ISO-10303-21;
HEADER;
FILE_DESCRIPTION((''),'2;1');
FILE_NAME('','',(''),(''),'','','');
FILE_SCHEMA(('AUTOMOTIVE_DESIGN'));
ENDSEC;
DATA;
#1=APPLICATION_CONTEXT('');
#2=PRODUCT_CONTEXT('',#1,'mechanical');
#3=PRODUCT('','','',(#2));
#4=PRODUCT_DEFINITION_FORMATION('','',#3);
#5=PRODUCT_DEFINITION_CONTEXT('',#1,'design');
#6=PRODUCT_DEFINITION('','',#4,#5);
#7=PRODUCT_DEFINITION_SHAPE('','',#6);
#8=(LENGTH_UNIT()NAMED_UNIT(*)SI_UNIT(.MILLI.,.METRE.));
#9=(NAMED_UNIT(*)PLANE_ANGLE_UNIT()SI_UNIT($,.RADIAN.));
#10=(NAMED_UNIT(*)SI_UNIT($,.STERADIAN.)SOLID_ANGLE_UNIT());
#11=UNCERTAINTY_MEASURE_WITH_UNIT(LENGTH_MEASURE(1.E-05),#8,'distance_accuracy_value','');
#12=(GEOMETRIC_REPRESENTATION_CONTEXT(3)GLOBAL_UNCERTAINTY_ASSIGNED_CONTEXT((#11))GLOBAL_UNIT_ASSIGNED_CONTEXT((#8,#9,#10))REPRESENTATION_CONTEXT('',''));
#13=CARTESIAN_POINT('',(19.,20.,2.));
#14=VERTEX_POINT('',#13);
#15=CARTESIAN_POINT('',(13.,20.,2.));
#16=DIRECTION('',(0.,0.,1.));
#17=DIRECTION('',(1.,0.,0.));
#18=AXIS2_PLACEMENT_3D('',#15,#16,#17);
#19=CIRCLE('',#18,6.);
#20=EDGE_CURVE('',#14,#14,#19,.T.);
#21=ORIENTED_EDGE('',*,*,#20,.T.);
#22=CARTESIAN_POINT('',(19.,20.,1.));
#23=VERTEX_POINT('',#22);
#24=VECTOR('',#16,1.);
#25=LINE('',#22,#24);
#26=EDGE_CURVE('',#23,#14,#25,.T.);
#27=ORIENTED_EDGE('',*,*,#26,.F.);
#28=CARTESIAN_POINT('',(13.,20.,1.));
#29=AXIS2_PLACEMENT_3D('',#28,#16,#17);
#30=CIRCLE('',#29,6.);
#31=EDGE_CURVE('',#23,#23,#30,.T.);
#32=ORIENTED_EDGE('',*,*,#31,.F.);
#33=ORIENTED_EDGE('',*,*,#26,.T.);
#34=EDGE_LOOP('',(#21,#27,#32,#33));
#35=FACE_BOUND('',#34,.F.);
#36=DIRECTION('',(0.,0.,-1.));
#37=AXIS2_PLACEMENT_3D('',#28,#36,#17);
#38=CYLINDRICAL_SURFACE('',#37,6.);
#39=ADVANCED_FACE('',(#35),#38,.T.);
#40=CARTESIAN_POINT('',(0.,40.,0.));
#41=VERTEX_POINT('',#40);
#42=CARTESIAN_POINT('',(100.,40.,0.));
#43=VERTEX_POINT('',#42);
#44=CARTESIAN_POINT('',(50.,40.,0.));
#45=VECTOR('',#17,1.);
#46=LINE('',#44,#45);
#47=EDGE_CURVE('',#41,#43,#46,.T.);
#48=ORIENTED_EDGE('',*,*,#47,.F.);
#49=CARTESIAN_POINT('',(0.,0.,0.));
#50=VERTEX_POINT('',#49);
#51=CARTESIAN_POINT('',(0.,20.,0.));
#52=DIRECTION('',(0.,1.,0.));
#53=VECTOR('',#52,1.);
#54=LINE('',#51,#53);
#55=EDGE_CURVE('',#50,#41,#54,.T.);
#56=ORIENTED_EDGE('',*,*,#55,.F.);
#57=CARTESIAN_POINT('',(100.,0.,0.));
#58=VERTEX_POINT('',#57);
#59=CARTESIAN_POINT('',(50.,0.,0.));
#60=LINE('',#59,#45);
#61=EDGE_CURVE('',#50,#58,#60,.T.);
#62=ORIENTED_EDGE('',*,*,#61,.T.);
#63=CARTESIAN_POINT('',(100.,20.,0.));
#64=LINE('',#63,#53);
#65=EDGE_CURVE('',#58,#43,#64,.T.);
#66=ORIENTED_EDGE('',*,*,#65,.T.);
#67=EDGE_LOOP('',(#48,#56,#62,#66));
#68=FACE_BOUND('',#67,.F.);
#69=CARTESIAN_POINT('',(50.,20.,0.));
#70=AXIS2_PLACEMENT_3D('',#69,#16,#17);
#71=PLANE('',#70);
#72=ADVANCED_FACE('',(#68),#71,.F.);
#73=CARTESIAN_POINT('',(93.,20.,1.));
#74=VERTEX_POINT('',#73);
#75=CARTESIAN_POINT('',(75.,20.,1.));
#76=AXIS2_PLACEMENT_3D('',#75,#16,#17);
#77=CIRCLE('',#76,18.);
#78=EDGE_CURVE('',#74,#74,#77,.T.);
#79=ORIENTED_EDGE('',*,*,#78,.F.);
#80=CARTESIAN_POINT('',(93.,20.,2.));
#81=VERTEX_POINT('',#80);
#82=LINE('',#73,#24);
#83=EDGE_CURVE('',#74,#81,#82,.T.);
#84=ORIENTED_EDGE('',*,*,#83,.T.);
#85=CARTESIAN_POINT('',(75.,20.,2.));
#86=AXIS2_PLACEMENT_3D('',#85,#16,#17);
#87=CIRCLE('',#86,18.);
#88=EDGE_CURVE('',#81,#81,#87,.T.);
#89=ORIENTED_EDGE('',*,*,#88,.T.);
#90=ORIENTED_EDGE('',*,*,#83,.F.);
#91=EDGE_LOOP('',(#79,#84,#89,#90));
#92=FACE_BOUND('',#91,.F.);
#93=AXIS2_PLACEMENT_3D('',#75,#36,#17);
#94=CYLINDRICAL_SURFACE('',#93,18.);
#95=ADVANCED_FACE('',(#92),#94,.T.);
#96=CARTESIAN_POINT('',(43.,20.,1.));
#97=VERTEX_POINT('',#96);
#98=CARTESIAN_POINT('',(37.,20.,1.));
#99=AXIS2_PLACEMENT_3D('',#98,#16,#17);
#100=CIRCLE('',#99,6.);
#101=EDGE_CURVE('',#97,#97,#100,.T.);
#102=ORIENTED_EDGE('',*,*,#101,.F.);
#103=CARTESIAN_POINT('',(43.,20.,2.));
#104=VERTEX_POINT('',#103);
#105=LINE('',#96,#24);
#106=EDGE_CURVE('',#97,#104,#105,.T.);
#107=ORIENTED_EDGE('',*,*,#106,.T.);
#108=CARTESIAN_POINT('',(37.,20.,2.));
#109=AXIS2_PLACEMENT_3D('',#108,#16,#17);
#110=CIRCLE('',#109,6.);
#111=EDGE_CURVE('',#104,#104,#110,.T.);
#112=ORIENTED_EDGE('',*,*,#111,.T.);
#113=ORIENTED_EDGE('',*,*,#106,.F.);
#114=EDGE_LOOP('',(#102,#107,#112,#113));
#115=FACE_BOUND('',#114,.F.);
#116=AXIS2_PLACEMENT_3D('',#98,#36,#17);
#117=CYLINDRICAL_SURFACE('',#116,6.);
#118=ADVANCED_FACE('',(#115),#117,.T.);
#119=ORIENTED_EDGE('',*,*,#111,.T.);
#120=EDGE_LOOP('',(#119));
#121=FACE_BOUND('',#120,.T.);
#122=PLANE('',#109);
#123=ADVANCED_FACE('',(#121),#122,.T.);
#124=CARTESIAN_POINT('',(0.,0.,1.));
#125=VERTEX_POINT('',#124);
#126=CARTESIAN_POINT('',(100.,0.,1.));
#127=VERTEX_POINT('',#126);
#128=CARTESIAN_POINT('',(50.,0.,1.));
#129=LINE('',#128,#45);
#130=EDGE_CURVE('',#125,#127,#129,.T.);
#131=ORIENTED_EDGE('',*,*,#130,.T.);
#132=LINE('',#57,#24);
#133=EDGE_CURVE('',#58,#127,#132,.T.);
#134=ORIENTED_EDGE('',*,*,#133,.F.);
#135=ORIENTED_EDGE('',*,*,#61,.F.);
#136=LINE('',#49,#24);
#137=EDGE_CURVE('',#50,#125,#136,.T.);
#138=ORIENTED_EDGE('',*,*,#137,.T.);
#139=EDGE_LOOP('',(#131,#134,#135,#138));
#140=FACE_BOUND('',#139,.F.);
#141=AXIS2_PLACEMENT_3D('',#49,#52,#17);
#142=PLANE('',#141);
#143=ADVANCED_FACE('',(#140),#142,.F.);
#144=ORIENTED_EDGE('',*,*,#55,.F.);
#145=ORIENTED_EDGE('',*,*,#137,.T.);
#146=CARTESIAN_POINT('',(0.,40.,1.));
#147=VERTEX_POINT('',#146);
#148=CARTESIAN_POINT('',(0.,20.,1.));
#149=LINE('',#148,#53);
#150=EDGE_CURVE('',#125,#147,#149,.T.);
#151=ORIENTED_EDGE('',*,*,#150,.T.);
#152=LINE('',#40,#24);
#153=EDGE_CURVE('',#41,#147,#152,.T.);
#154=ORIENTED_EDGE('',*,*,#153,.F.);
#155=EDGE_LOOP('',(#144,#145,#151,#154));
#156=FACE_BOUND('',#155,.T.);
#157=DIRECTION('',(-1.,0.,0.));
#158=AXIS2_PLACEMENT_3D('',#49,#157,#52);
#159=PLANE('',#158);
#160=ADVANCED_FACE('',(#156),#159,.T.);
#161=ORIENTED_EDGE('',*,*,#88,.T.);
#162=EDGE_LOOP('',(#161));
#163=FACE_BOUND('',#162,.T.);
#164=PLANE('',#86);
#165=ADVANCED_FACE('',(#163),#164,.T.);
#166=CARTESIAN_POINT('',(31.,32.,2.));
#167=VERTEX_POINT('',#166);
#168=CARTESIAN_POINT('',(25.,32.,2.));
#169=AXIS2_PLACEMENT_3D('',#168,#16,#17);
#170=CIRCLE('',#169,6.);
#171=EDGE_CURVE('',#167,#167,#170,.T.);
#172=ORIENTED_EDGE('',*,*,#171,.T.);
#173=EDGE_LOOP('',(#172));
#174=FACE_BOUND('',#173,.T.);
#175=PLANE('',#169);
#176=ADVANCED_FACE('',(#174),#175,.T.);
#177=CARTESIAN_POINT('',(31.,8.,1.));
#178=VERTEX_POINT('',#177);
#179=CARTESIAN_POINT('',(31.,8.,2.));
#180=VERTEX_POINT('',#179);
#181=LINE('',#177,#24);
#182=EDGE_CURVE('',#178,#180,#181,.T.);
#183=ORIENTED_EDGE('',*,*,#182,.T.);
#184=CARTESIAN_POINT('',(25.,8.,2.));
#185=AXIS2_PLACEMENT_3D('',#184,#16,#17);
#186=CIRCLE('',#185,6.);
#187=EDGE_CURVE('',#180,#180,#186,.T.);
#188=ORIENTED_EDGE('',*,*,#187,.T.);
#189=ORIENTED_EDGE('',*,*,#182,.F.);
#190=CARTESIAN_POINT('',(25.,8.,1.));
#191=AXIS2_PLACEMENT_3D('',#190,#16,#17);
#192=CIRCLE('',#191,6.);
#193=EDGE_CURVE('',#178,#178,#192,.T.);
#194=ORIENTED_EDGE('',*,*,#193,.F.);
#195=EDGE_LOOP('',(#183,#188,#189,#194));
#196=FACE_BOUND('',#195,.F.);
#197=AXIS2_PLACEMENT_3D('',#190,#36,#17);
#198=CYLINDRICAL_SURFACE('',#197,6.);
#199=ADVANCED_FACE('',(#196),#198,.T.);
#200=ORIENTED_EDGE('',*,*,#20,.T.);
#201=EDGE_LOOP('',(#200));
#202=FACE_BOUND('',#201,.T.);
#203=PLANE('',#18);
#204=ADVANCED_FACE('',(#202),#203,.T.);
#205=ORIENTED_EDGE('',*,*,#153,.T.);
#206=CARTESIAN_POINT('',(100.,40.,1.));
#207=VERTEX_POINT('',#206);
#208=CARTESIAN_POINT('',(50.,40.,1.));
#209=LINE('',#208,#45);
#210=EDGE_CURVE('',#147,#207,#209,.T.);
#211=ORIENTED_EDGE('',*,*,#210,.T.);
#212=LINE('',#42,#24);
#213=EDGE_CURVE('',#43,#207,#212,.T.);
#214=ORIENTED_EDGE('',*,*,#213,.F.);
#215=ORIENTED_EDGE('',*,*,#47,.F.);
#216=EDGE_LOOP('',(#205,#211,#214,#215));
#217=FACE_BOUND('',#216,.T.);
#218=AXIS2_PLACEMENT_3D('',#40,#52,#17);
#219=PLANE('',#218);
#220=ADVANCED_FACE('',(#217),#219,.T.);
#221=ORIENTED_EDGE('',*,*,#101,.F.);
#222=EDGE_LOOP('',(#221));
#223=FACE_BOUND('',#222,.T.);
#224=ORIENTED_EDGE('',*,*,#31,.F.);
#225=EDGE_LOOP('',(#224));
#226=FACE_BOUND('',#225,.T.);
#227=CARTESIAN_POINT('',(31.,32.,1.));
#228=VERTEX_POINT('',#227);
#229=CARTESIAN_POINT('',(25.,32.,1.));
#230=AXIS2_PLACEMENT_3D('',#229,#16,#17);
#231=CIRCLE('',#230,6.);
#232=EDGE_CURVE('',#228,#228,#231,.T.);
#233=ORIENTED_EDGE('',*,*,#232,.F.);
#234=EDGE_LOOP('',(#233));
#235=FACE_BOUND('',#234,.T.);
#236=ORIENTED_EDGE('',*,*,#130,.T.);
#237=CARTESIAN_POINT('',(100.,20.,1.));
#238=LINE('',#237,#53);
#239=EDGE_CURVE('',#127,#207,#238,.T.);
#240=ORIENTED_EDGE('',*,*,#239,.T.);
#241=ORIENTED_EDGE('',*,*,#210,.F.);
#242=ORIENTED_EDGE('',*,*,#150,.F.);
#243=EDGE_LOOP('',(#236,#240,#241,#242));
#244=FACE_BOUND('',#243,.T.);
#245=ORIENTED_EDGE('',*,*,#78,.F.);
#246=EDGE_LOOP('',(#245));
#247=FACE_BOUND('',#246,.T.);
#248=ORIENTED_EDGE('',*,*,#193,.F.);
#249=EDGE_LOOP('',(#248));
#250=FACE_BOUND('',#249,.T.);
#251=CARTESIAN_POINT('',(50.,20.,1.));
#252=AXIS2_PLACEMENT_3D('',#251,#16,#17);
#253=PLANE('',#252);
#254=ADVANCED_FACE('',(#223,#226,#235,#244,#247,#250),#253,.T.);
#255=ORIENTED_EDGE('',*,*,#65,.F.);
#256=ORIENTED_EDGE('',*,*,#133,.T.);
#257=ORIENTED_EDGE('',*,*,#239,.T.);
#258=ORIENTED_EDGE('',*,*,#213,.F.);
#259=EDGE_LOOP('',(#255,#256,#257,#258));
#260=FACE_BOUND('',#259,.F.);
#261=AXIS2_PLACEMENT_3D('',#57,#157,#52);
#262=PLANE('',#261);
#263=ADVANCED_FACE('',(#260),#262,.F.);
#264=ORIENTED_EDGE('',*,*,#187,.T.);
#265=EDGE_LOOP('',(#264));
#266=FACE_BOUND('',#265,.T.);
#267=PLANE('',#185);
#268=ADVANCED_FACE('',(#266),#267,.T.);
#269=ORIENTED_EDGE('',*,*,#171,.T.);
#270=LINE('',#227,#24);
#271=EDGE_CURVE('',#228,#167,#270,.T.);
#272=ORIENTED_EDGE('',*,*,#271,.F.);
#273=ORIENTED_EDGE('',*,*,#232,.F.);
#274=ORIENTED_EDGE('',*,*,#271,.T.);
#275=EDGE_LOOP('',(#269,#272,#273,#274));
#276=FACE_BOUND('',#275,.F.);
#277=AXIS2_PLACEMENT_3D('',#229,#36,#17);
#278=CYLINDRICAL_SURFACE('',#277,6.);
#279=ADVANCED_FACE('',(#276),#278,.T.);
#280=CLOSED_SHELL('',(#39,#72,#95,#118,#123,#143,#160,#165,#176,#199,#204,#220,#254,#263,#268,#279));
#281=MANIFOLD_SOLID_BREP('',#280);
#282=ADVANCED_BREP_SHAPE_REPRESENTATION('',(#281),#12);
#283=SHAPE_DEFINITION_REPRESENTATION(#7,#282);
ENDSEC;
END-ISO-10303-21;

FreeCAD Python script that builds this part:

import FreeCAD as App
import Part
import Sketcher

doc = App.newDocument("Part")
body = doc.addObject("PartDesign::Body", "Body")

# Sketch on XY plane
sketch1 = doc.addObject("Sketcher::SketchObject", "Sketch")
body.addObject(sketch1)
sketch1.AttachmentSupport = (doc.XY_Plane, [""])
sketch1.MapMode = "FlatFace"
sketch1.addGeometry(Part.LineSegment(App.Vector(0, 40, 0), App.Vector(0, 0, 0)), False)
sketch1.addGeometry(Part.LineSegment(App.Vector(0, 0, 0), App.Vector(100, 0, 0)), False)
sketch1.addGeometry(Part.LineSegment(App.Vector(100, 0, 0), App.Vector(100, 40, 0)), False)
sketch1.addGeometry(Part.LineSegment(App.Vector(100, 40, 0), App.Vector(0, 40, 0)), False)
sketch1.addConstraint(Sketcher.Constraint("Coincident", 0, 2, 1, 1))
sketch1.addConstraint(Sketcher.Constraint("Coincident", 1, 2, 2, 1))
sketch1.addConstraint(Sketcher.Constraint("Coincident", 2, 2, 3, 1))
sketch1.addConstraint(Sketcher.Constraint("Coincident", 3, 2, 0, 1))
sketch1.addConstraint(Sketcher.Constraint("Vertical", 0))
sketch1.addConstraint(Sketcher.Constraint("Horizontal", 1))
sketch1.addConstraint(Sketcher.Constraint("Vertical", 2))
sketch1.addConstraint(Sketcher.Constraint("Horizontal", 3))
sketch1.addConstraint(Sketcher.Constraint("Coincident", 0, 2, -1, 1))
sketch1.addConstraint(Sketcher.Constraint("DistanceX", 1, 1, 1, 2, 100.0))
sketch1.addConstraint(Sketcher.Constraint("DistanceY", 0, 2, 0, 1, 40.0))
pad1 = doc.addObject("PartDesign::Pad", "Pad")
body.addObject(pad1)
pad1.Profile = sketch1
pad1.Length = 1

# Sketch on XY plane
sketch2 = doc.addObject("Sketcher::SketchObject", "Sketch001")
body.addObject(sketch2)
sketch2.AttachmentSupport = (doc.XY_Plane, [""])
sketch2.MapMode = "FlatFace"
sketch2.AttachmentOffset = App.Placement(App.Vector(0, 0, 1), App.Rotation())
sketch2.addGeometry(Part.Circle(App.Vector(13, 20, 0), App.Vector(0, 0, 1), 6), False)
sketch2.addGeometry(Part.Circle(App.Vector(25, 32, 0), App.Vector(0, 0, 1), 6), False)
sketch2.addGeometry(Part.Circle(App.Vector(37, 20, 0), App.Vector(0, 0, 1), 6), False)
sketch2.addGeometry(Part.Circle(App.Vector(75, 20, 0), App.Vector(0, 0, 1), 18), False)
sketch2.addGeometry(Part.Circle(App.Vector(25, 8, 0), App.Vector(0, 0, 1), 6), False)
sketch2.addConstraint(Sketcher.Constraint("Equal", 0, 1))
sketch2.addConstraint(Sketcher.Constraint("Equal", 1, 2))
sketch2.addConstraint(Sketcher.Constraint("Equal", 2, 4))
sketch2.addConstraint(Sketcher.Constraint("Horizontal", 0, 3, 2, 3))
sketch2.addConstraint(Sketcher.Constraint("Horizontal", 2, 3, 3, 3))
sketch2.addConstraint(Sketcher.Constraint("Vertical", 1, 3, 4, 3))
sketch2.addConstraint(Sketcher.Constraint("Diameter", 0, 12.0))
sketch2.addConstraint(Sketcher.Constraint("Diameter", 3, 36.0))
sketch2.addConstraint(Sketcher.Constraint("DistanceX", -1, 1, 0, 3, 13.0))
sketch2.addConstraint(Sketcher.Constraint("DistanceY", -1, 1, 0, 3, 20.0))
sketch2.addConstraint(Sketcher.Constraint("DistanceX", -1, 1, 1, 3, 25.0))
sketch2.addConstraint(Sketcher.Constraint("DistanceY", -1, 1, 1, 3, 32.0))
sketch2.addConstraint(Sketcher.Constraint("DistanceX", -1, 1, 2, 3, 37.0))
sketch2.addConstraint(Sketcher.Constraint("DistanceX", -1, 1, 3, 3, 75.0))
sketch2.addConstraint(Sketcher.Constraint("DistanceY", -1, 1, 4, 3, 8.0))
pad2 = doc.addObject("PartDesign::Pad", "Pad001")
body.addObject(pad2)
pad2.Profile = sketch2
pad2.Length = 1

doc.recompute()
